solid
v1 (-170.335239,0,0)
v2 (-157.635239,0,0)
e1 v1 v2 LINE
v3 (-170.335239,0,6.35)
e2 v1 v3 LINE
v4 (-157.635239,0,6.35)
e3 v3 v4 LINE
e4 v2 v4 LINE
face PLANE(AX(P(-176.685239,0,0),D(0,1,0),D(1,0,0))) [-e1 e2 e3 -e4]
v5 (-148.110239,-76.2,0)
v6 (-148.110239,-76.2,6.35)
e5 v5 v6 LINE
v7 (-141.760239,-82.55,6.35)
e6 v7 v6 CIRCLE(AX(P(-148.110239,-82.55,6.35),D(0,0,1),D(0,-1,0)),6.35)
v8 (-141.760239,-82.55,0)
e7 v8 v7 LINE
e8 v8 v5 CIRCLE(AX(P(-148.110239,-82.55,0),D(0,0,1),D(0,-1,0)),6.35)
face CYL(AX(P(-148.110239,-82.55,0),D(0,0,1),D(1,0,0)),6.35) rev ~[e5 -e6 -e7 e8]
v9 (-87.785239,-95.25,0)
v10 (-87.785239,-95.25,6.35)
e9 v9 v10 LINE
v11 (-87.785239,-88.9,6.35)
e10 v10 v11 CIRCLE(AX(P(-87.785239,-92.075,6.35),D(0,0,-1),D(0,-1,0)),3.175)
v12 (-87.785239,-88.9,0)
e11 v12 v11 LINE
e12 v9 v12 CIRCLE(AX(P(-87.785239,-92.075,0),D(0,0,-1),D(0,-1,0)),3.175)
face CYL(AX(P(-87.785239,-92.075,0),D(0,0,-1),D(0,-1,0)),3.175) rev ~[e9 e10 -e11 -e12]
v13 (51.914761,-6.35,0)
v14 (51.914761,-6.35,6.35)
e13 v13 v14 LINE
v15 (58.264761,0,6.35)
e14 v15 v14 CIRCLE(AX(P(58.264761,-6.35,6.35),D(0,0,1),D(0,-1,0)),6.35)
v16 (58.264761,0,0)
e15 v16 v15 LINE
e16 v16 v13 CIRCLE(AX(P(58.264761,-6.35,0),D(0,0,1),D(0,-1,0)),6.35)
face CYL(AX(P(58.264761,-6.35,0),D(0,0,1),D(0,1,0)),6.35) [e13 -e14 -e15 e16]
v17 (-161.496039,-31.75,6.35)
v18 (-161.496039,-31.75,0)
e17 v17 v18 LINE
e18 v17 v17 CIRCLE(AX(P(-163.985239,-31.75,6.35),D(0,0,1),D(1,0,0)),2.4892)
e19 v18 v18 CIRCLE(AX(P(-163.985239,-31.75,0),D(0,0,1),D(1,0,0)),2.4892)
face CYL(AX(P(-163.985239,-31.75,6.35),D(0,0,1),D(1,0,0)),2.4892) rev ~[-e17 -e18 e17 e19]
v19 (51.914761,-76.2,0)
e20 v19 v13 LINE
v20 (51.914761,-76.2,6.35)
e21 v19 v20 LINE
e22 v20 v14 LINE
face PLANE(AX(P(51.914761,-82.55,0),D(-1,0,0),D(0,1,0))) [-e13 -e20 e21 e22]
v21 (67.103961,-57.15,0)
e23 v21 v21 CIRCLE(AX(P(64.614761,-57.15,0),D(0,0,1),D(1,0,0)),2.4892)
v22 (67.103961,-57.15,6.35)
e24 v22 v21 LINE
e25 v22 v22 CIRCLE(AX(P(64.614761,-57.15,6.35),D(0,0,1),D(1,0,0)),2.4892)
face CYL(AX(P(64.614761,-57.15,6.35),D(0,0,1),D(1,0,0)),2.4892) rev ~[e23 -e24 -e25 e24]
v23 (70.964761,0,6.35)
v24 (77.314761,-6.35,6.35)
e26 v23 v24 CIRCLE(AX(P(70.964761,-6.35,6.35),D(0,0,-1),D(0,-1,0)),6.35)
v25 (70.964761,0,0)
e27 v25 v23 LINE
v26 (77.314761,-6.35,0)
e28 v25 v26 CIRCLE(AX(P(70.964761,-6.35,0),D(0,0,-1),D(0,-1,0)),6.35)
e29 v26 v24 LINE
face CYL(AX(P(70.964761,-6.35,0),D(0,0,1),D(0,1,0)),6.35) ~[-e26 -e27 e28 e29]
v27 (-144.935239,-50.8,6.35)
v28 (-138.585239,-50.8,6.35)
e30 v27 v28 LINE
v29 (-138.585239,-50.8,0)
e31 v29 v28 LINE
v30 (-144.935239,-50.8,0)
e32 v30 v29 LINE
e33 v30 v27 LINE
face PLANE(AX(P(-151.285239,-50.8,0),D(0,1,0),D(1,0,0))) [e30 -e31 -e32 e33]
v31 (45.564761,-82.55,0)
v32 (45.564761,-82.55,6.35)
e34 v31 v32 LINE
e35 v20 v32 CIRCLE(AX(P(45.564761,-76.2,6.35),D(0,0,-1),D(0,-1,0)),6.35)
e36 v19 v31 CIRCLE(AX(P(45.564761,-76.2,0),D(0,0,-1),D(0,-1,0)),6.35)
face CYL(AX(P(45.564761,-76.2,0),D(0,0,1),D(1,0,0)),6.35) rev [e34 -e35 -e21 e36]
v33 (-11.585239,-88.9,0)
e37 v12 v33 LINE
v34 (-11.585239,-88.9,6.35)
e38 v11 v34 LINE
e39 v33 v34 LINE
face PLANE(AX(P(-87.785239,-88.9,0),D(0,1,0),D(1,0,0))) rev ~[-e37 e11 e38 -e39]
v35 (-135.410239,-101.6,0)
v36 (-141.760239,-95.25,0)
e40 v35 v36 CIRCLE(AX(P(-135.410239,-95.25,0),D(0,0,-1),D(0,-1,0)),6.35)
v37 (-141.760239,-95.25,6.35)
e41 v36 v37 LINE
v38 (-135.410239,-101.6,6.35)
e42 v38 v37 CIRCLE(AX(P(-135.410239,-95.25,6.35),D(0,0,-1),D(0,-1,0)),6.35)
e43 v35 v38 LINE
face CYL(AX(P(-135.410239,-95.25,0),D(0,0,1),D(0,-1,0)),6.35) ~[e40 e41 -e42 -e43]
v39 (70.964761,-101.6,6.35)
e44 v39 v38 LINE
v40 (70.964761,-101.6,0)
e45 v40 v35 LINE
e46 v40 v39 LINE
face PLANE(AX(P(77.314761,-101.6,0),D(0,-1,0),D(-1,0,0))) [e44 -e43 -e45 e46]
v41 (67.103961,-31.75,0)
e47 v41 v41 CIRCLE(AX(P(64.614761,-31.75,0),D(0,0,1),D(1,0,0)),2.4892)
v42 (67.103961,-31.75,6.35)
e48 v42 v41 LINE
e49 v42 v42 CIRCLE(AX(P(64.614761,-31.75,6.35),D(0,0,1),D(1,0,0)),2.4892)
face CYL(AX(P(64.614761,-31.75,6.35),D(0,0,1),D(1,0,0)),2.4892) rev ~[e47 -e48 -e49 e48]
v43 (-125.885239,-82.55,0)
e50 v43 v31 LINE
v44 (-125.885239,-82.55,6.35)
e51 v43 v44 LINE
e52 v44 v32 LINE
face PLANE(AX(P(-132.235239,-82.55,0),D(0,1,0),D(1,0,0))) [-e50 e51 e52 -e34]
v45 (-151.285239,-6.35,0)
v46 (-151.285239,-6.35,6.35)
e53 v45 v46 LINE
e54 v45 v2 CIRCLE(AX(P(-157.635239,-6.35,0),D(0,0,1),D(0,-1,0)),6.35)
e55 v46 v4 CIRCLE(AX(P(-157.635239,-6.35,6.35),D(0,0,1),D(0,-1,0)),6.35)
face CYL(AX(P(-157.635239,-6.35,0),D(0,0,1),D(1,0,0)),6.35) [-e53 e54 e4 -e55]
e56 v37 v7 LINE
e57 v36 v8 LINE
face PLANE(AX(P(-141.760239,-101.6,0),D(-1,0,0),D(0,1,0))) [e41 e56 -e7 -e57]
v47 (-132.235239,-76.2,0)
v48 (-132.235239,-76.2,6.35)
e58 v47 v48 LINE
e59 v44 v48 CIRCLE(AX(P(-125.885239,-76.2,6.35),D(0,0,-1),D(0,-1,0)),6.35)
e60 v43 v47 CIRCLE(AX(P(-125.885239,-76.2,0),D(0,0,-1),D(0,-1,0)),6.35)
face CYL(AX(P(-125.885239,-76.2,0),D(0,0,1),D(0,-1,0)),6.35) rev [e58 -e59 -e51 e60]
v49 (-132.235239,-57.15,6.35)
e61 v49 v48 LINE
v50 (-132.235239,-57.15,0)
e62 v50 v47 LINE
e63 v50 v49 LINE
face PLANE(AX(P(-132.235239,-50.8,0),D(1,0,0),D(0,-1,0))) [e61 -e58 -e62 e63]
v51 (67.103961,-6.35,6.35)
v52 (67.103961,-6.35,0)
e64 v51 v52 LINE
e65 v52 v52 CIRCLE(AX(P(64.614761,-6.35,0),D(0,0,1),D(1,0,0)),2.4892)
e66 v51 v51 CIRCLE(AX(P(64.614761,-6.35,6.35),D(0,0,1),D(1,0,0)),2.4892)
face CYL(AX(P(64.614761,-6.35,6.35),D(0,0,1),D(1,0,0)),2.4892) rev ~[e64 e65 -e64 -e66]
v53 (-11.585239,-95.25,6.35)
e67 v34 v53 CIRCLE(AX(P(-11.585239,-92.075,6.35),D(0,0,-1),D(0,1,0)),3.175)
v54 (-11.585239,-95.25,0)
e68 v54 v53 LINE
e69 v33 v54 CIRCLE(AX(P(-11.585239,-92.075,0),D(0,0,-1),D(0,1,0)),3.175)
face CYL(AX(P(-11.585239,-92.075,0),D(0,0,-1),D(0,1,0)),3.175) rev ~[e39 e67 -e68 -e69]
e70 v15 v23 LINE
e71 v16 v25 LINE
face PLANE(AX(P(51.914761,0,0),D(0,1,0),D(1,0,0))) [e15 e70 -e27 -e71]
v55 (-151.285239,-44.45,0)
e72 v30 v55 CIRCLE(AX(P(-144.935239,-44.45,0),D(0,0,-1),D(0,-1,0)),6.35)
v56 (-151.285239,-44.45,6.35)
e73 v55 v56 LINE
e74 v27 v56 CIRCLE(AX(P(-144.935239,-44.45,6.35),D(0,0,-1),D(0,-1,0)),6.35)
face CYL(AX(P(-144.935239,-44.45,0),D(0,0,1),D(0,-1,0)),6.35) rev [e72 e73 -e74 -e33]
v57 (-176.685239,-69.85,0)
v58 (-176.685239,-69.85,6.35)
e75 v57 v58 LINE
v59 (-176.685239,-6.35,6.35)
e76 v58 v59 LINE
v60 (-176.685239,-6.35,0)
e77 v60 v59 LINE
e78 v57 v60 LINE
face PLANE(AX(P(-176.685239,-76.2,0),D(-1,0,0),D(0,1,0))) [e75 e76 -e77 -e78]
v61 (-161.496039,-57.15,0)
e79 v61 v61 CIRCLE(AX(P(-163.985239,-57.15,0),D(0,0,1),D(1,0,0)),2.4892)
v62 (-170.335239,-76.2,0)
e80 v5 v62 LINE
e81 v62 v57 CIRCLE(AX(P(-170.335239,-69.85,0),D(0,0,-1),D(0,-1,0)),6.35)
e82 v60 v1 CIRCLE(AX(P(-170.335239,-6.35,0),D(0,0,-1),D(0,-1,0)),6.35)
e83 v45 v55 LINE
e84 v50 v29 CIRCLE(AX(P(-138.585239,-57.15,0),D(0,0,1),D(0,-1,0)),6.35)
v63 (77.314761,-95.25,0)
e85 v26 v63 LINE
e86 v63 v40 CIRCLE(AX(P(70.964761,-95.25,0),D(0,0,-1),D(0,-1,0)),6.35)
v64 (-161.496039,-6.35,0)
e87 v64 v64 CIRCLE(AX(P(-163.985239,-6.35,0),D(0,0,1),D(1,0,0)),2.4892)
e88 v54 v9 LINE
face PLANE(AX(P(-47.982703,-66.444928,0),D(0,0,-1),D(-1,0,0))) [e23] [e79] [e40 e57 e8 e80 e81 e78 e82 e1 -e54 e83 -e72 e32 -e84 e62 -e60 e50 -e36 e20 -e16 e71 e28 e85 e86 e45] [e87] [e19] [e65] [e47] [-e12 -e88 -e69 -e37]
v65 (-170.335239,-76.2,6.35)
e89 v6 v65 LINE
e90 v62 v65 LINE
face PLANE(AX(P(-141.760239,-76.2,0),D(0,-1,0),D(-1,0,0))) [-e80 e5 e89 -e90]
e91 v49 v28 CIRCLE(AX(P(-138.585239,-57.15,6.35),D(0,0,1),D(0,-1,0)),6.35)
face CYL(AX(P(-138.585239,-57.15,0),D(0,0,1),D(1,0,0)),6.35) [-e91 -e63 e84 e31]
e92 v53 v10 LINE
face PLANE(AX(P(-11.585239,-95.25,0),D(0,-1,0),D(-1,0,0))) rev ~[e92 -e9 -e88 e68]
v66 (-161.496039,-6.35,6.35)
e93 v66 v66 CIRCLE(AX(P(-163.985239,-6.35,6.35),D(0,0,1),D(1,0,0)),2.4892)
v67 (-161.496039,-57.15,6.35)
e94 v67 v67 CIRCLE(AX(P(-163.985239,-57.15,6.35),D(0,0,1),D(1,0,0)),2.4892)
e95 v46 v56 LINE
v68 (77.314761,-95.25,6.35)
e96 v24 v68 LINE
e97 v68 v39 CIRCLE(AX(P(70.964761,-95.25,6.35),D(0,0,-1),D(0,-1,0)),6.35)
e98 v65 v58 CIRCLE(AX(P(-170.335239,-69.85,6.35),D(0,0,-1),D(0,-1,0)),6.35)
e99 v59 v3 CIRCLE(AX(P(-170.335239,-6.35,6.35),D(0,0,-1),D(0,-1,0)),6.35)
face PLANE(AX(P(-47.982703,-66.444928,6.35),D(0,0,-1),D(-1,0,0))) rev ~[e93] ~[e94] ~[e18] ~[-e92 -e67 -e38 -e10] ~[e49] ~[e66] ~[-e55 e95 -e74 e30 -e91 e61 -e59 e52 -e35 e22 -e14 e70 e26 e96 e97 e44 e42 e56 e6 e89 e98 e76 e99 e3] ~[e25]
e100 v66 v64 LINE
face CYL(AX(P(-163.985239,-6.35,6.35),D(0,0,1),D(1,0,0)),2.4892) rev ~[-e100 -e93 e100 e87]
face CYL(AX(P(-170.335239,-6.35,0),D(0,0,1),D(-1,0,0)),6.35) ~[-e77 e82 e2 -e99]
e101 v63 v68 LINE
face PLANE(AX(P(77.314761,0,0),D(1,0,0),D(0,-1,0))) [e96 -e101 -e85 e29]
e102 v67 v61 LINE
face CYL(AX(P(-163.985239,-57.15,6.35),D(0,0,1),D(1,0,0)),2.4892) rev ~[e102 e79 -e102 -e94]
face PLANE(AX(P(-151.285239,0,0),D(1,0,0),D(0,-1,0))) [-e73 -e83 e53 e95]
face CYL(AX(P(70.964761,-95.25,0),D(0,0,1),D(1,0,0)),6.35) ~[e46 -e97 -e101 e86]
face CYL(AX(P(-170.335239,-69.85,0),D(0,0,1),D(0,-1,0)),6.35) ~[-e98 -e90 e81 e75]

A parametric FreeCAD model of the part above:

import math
import FreeCAD as App
import Part
import Sketcher

V = App.Vector
Q = App.Units.Quantity


def edges_at(feature, points):
    """Names of the edges that pass closest to the given points."""
    edges = feature.Shape.Edges
    near = lambda p: min(range(len(edges)), key=lambda i: edges[i].distToShape(Part.Vertex(*p))[0])
    return sorted({f"Edge{near(p) + 1}" for p in points})

doc = App.newDocument("Part")
body = doc.addObject("PartDesign::Body", "Body")

sketch1 = body.newObject("Sketcher::SketchObject", "Sketch")
sketch1.AttachmentSupport = (doc.getObject("XY_Plane"), [""])
sketch1.MapMode = "FlatFace"
sketch1.addGeometry([
    Part.LineSegment(V(77.3, 0, 0), V(51.9, 0, 0)),
    Part.LineSegment(V(51.9, 0, 0), V(51.9, -82.5, 0)),
    Part.LineSegment(V(51.9, -82.5, 0), V(-132.2, -82.5, 0)),
    Part.LineSegment(V(-132.2, -82.5, 0), V(-132.2, -50.8, 0)),
    Part.LineSegment(V(-132.2, -50.8, 0), V(-151.3, -50.8, 0)),
    Part.LineSegment(V(-151.3, -50.8, 0), V(-151.3, 0, 0)),
    Part.LineSegment(V(-151.3, 0, 0), V(-176.7, 0, 0)),
    Part.LineSegment(V(-176.7, 0, 0), V(-176.7, -76.2, 0)),
    Part.LineSegment(V(-176.7, -76.2, 0), V(-141.8, -76.2, 0)),
    Part.LineSegment(V(-141.8, -76.2, 0), V(-141.8, -101.6, 0)),
    Part.LineSegment(V(-141.8, -101.6, 0), V(77.3, -101.6, 0)),
    Part.LineSegment(V(77.3, -101.6, 0), V(77.3, 0, 0)),
    Part.LineSegment(V(-87.8, -88.9, 0), V(-11.6, -88.9, 0)),
    Part.ArcOfCircle(Part.Circle(V(-11.6, -92.1, 0), V(0, 0, 1), 3.2), math.radians(-90), math.radians(90)),
    Part.LineSegment(V(-11.6, -95.2, 0), V(-87.8, -95.2, 0)),
    Part.ArcOfCircle(Part.Circle(V(-87.8, -92.1, 0), V(0, 0, 1), 3.2), math.radians(90), math.radians(270)),
], False)
sketch1.addConstraint([
    Sketcher.Constraint("Coincident", 0, 2, 1, 1),
    Sketcher.Constraint("Coincident", 1, 2, 2, 1),
    Sketcher.Constraint("Coincident", 2, 2, 3, 1),
    Sketcher.Constraint("Coincident", 3, 2, 4, 1),
    Sketcher.Constraint("Coincident", 4, 2, 5, 1),
    Sketcher.Constraint("Coincident", 5, 2, 6, 1),
    Sketcher.Constraint("Coincident", 6, 2, 7, 1),
    Sketcher.Constraint("Coincident", 7, 2, 8, 1),
    Sketcher.Constraint("Coincident", 8, 2, 9, 1),
    Sketcher.Constraint("Coincident", 9, 2, 10, 1),
    Sketcher.Constraint("Coincident", 10, 2, 11, 1),
    Sketcher.Constraint("Coincident", 11, 2, 0, 1),
    Sketcher.Constraint("Tangent", 12, 2, 13, 2),
    Sketcher.Constraint("Tangent", 13, 1, 14, 1),
    Sketcher.Constraint("Tangent", 14, 2, 15, 2),
    Sketcher.Constraint("Tangent", 15, 1, 12, 1),
    Sketcher.Constraint("Horizontal", 0),
    Sketcher.Constraint("Vertical", 1),
    Sketcher.Constraint("Horizontal", 2),
    Sketcher.Constraint("Vertical", 3),
    Sketcher.Constraint("Horizontal", 4),
    Sketcher.Constraint("Vertical", 5),
    Sketcher.Constraint("Horizontal", 6),
    Sketcher.Constraint("Vertical", 7),
    Sketcher.Constraint("Horizontal", 8),
    Sketcher.Constraint("Vertical", 9),
    Sketcher.Constraint("Horizontal", 10),
    Sketcher.Constraint("Vertical", 11),
    Sketcher.Constraint("Horizontal", 12),
    Sketcher.Constraint("Horizontal", 14),
    Sketcher.Constraint("PointOnObject", 0, 2, -1),
    Sketcher.Constraint("PointOnObject", 5, 2, -1),
    Sketcher.Constraint("Equal", 0, 6),
    Sketcher.Constraint("Equal", 14, 7),
    Sketcher.Constraint("Equal", 6, 9),
    Sketcher.Constraint("DistanceX", 0, 2, 0, 1, Q("1 in")),
    Sketcher.Constraint("DistanceX", 12, 1, 12, 2, Q("3 in")),
    Sketcher.Constraint("DistanceY", 5, 1, 5, 2, Q("2 in")),
    Sketcher.Constraint("Radius", 13, Q("0.125 in")),
    Sketcher.Constraint("DistanceX", 4, 2, 1, 2, Q("8 in")),
    Sketcher.Constraint("DistanceX", 2, 2, 2, 1, Q("7.25 in")),
    Sketcher.Constraint("DistanceY", 1, 2, 1, 1, Q("3.25 in")),
    Sketcher.Constraint("DistanceY", 12, 2, -1, 1, Q("3.5 in")),
    Sketcher.Constraint("DistanceX", 13, 3, 0, 2, Q("2.5 in")),
    Sketcher.Constraint("DistanceX", 8, 1, 8, 2, Q("1.375 in")),
    Sketcher.Constraint("DistanceX", 13, 3, -1, 1, Q("11.585239 mm")),
])
pad1 = body.newObject("PartDesign::Pad", "Pad")
pad1.Profile = sketch1
pad1.Length = Q("0.25 in")
doc.recompute()

fillet = body.newObject("PartDesign::Fillet", "Fillet")
fillet.Base = (pad1, edges_at(pad1, [
    (-176.685, 0, 3.175),
    (-151.285, 0, 3.175),
    (-151.285, -50.8, 3.175),
    (-132.235, -50.8, 3.175),
    (-132.235, -82.55, 3.175),
    (51.915, -82.55, 3.175),
    (51.915, 0, 3.175),
    (77.315, 0, 3.175),
    (77.315, -101.6, 3.175),
    (-141.76, -101.6, 3.175),
    (-141.76, -76.2, 3.175),
    (-176.685, -76.2, 3.175),
]))
fillet.Radius = Q("0.25 in")

sketch2 = body.newObject("Sketcher::SketchObject", "Sketch001")
sketch2.AttachmentSupport = (doc.getObject("XY_Plane"), [""])
sketch2.MapMode = "FlatFace"
sketch2.AttachmentOffset = App.Placement(V(0, 0, 0.25 * 25.4), App.Rotation())
sketch2.addGeometry([
    Part.Circle(V(64.6, -6.3, 0), V(0, 0, 1), 2.5),
    Part.Circle(V(64.6, -31.8, 0), V(0, 0, 1), 2.5),
    Part.Circle(V(64.6, -57.1, 0), V(0, 0, 1), 2.5),
    Part.Circle(V(-164, -6.3, 0), V(0, 0, 1), 2.5),
    Part.Circle(V(-164, -31.8, 0), V(0, 0, 1), 2.5),
    Part.Circle(V(-164, -57.1, 0), V(0, 0, 1), 2.5),
], False)
sketch2.addConstraint([
    Sketcher.Constraint("Equal", 0, 1),
    Sketcher.Constraint("Equal", 1, 2),
    Sketcher.Constraint("Equal", 2, 3),
    Sketcher.Constraint("Equal", 3, 4),
    Sketcher.Constraint("Equal", 4, 5),
    Sketcher.Constraint("Horizontal", 0, 3, 3, 3),
    Sketcher.Constraint("Horizontal", 1, 3, 4, 3),
    Sketcher.Constraint("Horizontal", 2, 3, 5, 3),
    Sketcher.Constraint("Vertical", 0, 3, 1, 3),
    Sketcher.Constraint("Vertical", 1, 3, 2, 3),
    Sketcher.Constraint("Vertical", 3, 3, 4, 3),
    Sketcher.Constraint("Vertical", 4, 3, 5, 3),
    Sketcher.Constraint("Diameter", 0, Q("0.196 in")),
    Sketcher.Constraint("DistanceY", 1, 3, 0, 3, Q("1 in")),
    Sketcher.Constraint("DistanceY", 2, 3, 1, 3, Q("1 in")),
    Sketcher.Constraint("DistanceX", 3, 3, 0, 3, Q("9 in")),
    Sketcher.Constraint("DistanceY", 0, 3, -1, 1, Q("0.25 in")),
    Sketcher.Constraint("DistanceX", -1, 1, 0, 3, Q("64.614761 mm")),
])
pocket1 = body.newObject("PartDesign::Pocket", "Pocket")
pocket1.Profile = sketch2
pocket1.Type = "ThroughAll"

doc.recompute()
